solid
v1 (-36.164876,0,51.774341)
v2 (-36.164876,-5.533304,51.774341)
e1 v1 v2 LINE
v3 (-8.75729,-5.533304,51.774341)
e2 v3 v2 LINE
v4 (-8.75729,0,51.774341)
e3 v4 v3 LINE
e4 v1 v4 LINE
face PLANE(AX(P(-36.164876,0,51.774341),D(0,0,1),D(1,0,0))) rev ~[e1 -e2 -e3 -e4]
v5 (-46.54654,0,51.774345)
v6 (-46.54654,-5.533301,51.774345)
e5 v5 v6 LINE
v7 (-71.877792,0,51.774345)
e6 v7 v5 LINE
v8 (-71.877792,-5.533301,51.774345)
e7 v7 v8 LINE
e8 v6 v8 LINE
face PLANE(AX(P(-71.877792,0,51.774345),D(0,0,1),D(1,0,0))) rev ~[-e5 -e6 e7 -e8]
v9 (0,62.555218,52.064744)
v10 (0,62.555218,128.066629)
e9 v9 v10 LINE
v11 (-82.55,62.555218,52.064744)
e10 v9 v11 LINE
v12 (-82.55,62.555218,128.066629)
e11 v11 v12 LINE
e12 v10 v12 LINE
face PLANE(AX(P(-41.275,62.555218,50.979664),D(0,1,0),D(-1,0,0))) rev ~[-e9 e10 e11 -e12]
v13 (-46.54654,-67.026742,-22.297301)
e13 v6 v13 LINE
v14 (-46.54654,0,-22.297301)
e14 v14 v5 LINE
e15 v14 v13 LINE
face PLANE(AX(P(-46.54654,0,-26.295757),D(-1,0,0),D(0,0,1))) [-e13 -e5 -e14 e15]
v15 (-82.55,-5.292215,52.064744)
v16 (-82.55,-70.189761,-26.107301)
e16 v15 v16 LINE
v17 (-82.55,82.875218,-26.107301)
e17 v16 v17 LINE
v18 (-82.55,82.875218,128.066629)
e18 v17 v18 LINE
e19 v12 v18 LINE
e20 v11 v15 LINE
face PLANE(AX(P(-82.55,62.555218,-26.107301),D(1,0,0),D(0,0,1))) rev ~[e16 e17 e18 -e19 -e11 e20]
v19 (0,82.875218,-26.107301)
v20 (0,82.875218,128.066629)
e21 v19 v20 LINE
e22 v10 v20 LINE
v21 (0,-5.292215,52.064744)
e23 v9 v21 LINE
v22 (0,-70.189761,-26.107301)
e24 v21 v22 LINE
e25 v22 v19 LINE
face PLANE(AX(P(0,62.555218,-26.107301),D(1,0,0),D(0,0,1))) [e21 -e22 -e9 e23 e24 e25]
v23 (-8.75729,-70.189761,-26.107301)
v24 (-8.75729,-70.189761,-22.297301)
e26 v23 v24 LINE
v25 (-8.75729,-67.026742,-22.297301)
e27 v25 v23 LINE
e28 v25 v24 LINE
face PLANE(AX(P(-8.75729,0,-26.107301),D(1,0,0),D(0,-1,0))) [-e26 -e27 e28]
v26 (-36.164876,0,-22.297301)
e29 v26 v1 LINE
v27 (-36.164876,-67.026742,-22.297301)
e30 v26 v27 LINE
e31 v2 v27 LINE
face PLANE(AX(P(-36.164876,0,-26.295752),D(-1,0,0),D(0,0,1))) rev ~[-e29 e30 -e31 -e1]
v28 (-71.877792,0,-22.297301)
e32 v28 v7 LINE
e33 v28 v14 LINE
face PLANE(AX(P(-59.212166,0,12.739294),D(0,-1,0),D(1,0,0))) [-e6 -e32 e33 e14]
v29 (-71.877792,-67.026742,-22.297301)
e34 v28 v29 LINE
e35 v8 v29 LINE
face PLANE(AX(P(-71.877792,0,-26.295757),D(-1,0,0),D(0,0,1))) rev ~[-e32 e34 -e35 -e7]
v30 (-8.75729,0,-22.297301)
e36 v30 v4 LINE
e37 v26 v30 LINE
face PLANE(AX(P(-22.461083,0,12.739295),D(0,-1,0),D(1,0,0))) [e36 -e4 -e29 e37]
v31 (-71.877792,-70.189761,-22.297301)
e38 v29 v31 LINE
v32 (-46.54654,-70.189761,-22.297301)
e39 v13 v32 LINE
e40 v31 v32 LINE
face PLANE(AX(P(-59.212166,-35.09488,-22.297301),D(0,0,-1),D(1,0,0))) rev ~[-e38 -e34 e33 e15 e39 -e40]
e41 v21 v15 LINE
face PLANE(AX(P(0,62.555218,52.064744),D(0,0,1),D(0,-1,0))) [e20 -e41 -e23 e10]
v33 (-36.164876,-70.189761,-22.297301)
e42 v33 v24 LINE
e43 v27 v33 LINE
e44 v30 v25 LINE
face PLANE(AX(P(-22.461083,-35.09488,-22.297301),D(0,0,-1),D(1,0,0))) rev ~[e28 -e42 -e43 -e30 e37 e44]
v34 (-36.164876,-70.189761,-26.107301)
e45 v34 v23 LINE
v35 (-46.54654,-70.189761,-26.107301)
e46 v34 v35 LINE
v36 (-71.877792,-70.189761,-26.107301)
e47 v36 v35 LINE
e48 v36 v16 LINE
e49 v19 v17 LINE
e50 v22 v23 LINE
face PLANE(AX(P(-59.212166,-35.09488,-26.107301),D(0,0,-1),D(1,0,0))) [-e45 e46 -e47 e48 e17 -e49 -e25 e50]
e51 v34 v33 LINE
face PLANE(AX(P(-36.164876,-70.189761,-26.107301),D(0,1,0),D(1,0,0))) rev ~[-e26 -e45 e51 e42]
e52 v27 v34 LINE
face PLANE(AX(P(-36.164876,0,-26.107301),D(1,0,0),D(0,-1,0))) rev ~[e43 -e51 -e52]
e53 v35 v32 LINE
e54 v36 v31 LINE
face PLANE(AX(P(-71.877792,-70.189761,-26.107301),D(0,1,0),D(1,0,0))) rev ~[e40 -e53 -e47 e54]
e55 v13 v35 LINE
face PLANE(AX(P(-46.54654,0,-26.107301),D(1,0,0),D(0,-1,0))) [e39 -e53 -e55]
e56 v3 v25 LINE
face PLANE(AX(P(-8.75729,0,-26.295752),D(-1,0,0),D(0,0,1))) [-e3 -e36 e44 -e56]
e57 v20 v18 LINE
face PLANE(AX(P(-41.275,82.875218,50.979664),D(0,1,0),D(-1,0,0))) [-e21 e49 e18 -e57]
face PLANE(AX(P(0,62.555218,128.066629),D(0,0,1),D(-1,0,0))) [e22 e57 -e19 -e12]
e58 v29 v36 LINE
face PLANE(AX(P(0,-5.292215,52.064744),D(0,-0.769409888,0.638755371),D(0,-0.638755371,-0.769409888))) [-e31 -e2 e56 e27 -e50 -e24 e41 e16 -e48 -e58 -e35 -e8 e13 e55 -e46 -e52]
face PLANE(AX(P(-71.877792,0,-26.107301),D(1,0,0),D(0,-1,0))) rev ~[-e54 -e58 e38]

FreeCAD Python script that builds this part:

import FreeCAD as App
import Part
import Sketcher

V = App.Vector
Q = App.Units.Quantity


def add_polygon(sketch, points):
    """Adds a closed chain of lines whose ends are joined by coincident constraints."""
    first, n = sketch.GeometryCount, len(points)
    for a, b in zip(points, points[1:] + points[:1]):
        sketch.addGeometry(Part.LineSegment(App.Vector(*a, 0), App.Vector(*b, 0)), False)
    for i in range(n):
        sketch.addConstraint(Sketcher.Constraint("Coincident", first + i, 2, first + (i + 1) % n, 1))

doc = App.newDocument("Part")
body = doc.addObject("PartDesign::Body", "Body")

sketch1 = body.newObject("Sketcher::SketchObject", "Sketch")
sketch1.AttachmentSupport = (doc.getObject("YZ_Plane"), [""])
sketch1.MapMode = "FlatFace"
add_polygon(sketch1, [(-5.292215, 52.064744), (-70.189761, -26.107301), (62.555218, -26.107301), (62.555218, 52.064744)])
sketch1.addConstraint(Sketcher.Constraint("Horizontal", 1))
sketch1.addConstraint(Sketcher.Constraint("Vertical", 2))
sketch1.addConstraint(Sketcher.Constraint("Horizontal", 3))
sketch1.addConstraint(Sketcher.Constraint("Distance", 0, Q("4 in")))
sketch1.addConstraint(Sketcher.Constraint("DistanceX", 1, 1, 1, 2, 132.744979))
sketch1.addConstraint(Sketcher.Constraint("DistanceY", 0, 2, -1, 1, 26.107301))
sketch1.addConstraint(Sketcher.Constraint("DistanceX", 3, 2, 3, 1, 67.847433))
sketch1.addConstraint(Sketcher.Constraint("DistanceX", 0, 2, -1, 1, 70.189761))
pad1 = body.newObject("PartDesign::Pad", "Pad")
pad1.Profile = sketch1
pad1.Length = Q("3.25 in")
pad1.Reversed = True

sketch2 = body.newObject("Sketcher::SketchObject", "Sketch001")
sketch2.AttachmentSupport = (doc.getObject("XZ_Plane"), [""])
sketch2.MapMode = "FlatFace"
sketch2.AttachmentOffset = App.Placement(V(0, 0, -62.555218), App.Rotation())
add_polygon(sketch2, [(0, 128.066629), (0, -26.107301), (-82.55, -26.107301), (-82.55, 128.066629)])
sketch2.addConstraint(Sketcher.Constraint("Vertical", 0))
sketch2.addConstraint(Sketcher.Constraint("Horizontal", 1))
sketch2.addConstraint(Sketcher.Constraint("Vertical", 2))
sketch2.addConstraint(Sketcher.Constraint("Horizontal", 3))
sketch2.addConstraint(Sketcher.Constraint("PointOnObject", 0, 2, -2))
sketch2.addConstraint(Sketcher.Constraint("DistanceX", 1, 2, 1, 1, Q("3.25 in")))
sketch2.addConstraint(Sketcher.Constraint("DistanceY", 0, 2, 0, 1, 154.17393))
sketch2.addConstraint(Sketcher.Constraint("DistanceY", 0, 2, -1, 1, 26.107301))
pad2 = body.newObject("PartDesign::Pad", "Pad001")
pad2.Profile = sketch2
pad2.Length = Q("0.8 in")
pad2.Reversed = True

sketch3 = body.newObject("Sketcher::SketchObject", "Sketch002")
sketch3.AttachmentSupport = (doc.getObject("XZ_Plane"), [""])
sketch3.MapMode = "FlatFace"
add_polygon(sketch3, [(-71.877792, 51.774345), (-71.877792, -26.295757), (-46.54654, -26.295757), (-46.54654, 51.774345)])
add_polygon(sketch3, [(-36.164876, 51.774341), (-36.164876, -26.295752), (-8.75729, -26.295752), (-8.75729, 51.774341)])
sketch3.addConstraint(Sketcher.Constraint("Vertical", 0))
sketch3.addConstraint(Sketcher.Constraint("Horizontal", 1))
sketch3.addConstraint(Sketcher.Constraint("Vertical", 2))
sketch3.addConstraint(Sketcher.Constraint("Horizontal", 3))
sketch3.addConstraint(Sketcher.Constraint("Vertical", 4))
sketch3.addConstraint(Sketcher.Constraint("Horizontal", 5))
sketch3.addConstraint(Sketcher.Constraint("Vertical", 6))
sketch3.addConstraint(Sketcher.Constraint("Horizontal", 7))
sketch3.addConstraint(Sketcher.Constraint("DistanceY", 0, 2, 0, 1, 78.070102))
sketch3.addConstraint(Sketcher.Constraint("DistanceX", 1, 1, 1, 2, 25.331251))
sketch3.addConstraint(Sketcher.Constraint("DistanceX", 0, 2, 5, 2, 63.120502))
sketch3.addConstraint(Sketcher.Constraint("DistanceY", 1, 2, 6, 2, 78.070099))
sketch3.addConstraint(Sketcher.Constraint("DistanceX", 5, 1, 5, 2, 27.407586))
sketch3.addConstraint(Sketcher.Constraint("DistanceY", 4, 2, 4, 1, 78.070093))
sketch3.addConstraint(Sketcher.Constraint("DistanceX", 0, 2, -1, 1, 71.877792))
sketch3.addConstraint(Sketcher.Constraint("DistanceY", 4, 2, -1, 1, 26.295752))
pocket1 = body.newObject("PartDesign::Pocket", "Pocket")
pocket1.Profile = sketch3
pocket1.Length = Q("3 in")
pocket1.Reversed = True

sketch4 = body.newObject("Sketcher::SketchObject", "Sketch003")
sketch4.AttachmentSupport = (doc.getObject("XY_Plane"), [""])
sketch4.MapMode = "FlatFace"
sketch4.AttachmentOffset = App.Placement(V(0, 0, -26.107301), App.Rotation())
add_polygon(sketch4, [(-71.877792, -70.189761), (-71.877792, 0), (-46.54654, 0), (-46.54654, -70.189761)])
add_polygon(sketch4, [(-36.164876, -70.189761), (-36.164876, 0), (-8.75729, 0), (-8.75729, -70.189761)])
sketch4.addConstraint(Sketcher.Constraint("Vertical", 0))
sketch4.addConstraint(Sketcher.Constraint("Horizontal", 1))
sketch4.addConstraint(Sketcher.Constraint("Vertical", 2))
sketch4.addConstraint(Sketcher.Constraint("Horizontal", 3))
sketch4.addConstraint(Sketcher.Constraint("Vertical", 4))
sketch4.addConstraint(Sketcher.Constraint("Horizontal", 5))
sketch4.addConstraint(Sketcher.Constraint("Vertical", 6))
sketch4.addConstraint(Sketcher.Constraint("Horizontal", 7))
sketch4.addConstraint(Sketcher.Constraint("PointOnObject", 0, 2, -1))
sketch4.addConstraint(Sketcher.Constraint("PointOnObject", 4, 2, -1))
sketch4.addConstraint(Sketcher.Constraint("Horizontal", 3, 2, 6, 2))
sketch4.addConstraint(Sketcher.Constraint("DistanceX", 1, 1, 1, 2, 25.331251))
sketch4.addConstraint(Sketcher.Constraint("DistanceY", 0, 1, 0, 2, 70.189761))
sketch4.addConstraint(Sketcher.Constraint("DistanceX", 0, 2, 5, 2, 63.120502))
sketch4.addConstraint(Sketcher.Constraint("DistanceX", 5, 1, 5, 2, 27.407586))
sketch4.addConstraint(Sketcher.Constraint("DistanceX", 0, 2, -1, 1, 71.877792))
pad3 = body.newObject("PartDesign::Pad", "Pad002")
pad3.Profile = sketch4
pad3.Length = Q("0.15 in")

doc.recompute()
